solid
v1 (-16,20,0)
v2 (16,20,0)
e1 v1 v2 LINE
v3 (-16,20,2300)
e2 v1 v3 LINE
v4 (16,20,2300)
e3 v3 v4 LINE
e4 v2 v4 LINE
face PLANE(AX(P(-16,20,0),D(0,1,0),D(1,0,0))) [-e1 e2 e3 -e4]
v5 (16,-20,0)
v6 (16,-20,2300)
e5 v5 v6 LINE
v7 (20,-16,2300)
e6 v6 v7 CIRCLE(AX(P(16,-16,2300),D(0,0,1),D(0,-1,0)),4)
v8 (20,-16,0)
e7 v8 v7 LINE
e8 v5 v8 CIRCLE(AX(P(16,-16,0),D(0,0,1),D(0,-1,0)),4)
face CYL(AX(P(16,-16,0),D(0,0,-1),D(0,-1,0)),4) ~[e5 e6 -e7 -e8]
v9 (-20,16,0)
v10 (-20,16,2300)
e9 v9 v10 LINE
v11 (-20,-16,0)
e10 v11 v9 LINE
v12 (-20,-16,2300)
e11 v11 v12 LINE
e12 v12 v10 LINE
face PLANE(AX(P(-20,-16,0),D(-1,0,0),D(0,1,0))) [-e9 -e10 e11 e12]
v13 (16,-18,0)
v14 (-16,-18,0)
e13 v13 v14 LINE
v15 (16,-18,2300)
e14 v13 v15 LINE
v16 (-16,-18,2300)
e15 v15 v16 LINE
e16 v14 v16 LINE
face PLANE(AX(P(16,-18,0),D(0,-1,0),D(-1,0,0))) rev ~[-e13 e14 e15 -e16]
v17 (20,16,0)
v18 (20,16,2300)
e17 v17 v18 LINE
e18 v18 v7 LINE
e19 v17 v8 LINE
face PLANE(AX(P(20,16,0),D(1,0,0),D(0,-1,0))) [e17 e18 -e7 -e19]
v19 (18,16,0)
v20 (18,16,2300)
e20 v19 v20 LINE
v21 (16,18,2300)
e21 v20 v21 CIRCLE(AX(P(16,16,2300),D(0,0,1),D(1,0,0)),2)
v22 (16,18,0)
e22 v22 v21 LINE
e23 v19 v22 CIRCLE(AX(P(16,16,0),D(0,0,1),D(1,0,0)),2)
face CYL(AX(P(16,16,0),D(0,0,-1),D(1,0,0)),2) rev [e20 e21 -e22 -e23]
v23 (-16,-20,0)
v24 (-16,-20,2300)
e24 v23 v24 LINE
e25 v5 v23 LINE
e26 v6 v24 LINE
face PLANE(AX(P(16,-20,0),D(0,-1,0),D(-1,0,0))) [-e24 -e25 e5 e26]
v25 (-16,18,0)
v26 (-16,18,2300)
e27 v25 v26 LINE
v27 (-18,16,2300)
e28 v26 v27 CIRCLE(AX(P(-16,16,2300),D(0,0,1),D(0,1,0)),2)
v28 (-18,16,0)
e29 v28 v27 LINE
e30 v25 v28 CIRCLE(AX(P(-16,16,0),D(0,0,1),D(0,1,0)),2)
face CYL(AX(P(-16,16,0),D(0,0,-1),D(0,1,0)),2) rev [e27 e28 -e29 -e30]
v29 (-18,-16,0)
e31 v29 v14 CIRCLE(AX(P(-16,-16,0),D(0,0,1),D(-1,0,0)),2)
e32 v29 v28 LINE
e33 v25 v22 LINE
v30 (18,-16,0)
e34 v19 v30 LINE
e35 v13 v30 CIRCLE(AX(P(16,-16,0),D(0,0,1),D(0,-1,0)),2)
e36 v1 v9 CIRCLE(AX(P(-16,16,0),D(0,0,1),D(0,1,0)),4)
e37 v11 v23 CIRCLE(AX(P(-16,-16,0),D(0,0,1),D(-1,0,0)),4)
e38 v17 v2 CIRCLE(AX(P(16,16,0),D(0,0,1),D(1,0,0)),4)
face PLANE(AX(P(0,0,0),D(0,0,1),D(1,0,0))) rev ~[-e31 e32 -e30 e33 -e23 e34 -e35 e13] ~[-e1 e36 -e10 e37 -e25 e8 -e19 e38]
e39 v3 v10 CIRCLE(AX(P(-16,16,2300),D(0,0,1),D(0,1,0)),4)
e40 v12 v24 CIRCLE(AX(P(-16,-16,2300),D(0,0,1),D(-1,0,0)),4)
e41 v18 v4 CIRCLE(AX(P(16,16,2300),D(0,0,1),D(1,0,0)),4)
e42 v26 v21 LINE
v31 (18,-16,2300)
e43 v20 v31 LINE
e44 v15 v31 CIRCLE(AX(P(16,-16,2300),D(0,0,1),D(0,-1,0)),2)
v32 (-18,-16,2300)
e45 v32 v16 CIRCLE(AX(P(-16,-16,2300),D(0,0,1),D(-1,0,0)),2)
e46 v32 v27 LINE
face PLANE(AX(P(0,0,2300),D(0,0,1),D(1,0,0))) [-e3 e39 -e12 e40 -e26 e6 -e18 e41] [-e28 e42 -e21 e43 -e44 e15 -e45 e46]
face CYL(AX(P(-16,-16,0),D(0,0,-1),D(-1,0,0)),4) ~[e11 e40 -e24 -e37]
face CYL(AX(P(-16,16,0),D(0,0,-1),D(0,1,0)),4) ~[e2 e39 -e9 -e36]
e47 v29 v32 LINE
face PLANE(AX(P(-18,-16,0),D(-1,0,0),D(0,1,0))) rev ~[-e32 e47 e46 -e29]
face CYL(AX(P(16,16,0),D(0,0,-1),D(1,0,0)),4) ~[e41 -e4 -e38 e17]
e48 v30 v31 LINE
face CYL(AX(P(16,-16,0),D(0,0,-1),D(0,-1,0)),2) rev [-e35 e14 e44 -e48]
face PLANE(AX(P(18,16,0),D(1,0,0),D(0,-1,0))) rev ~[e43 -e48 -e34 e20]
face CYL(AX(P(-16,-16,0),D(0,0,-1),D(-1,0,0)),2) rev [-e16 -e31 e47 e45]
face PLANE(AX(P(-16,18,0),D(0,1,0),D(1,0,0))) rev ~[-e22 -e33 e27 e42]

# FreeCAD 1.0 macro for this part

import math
import FreeCAD as App
import Part
import Sketcher

V = App.Vector
Q = App.Units.Quantity

doc = App.newDocument("Part")
body = doc.addObject("PartDesign::Body", "Body")

# Sketch on XY plane
sketch1 = body.newObject("Sketcher::SketchObject", "Sketch")
sketch1.AttachmentSupport = (doc.getObject("XY_Plane"), [""])
sketch1.MapMode = "FlatFace"
sketch1.addGeometry(Part.LineSegment(V(-20, 16, 0), V(-20, -16, 0)), False)
sketch1.addGeometry(Part.ArcOfCircle(Part.Circle(V(-16, -16, 0), V(0, 0, 1), 4), math.radians(180), math.radians(270)), False)
sketch1.addGeometry(Part.LineSegment(V(-16, -20, 0), V(16, -20, 0)), False)
sketch1.addGeometry(Part.ArcOfCircle(Part.Circle(V(16, -16, 0), V(0, 0, 1), 4), math.radians(-90), math.radians(0)), False)
sketch1.addGeometry(Part.LineSegment(V(20, -16, 0), V(20, 16, 0)), False)
sketch1.addGeometry(Part.ArcOfCircle(Part.Circle(V(16, 16, 0), V(0, 0, 1), 4), math.radians(0), math.radians(90)), False)
sketch1.addGeometry(Part.LineSegment(V(16, 20, 0), V(-16, 20, 0)), False)
sketch1.addGeometry(Part.ArcOfCircle(Part.Circle(V(-16, 16, 0), V(0, 0, 1), 4), math.radians(90), math.radians(180)), False)
sketch1.addGeometry(Part.ArcOfCircle(Part.Circle(V(-16, 16, 0), V(0, 0, 1), 2), math.radians(90), math.radians(180)), False)
sketch1.addGeometry(Part.LineSegment(V(-16, 18, 0), V(16, 18, 0)), False)
sketch1.addGeometry(Part.ArcOfCircle(Part.Circle(V(16, 16, 0), V(0, 0, 1), 2), math.radians(0), math.radians(90)), False)
sketch1.addGeometry(Part.LineSegment(V(18, 16, 0), V(18, -16, 0)), False)
sketch1.addGeometry(Part.ArcOfCircle(Part.Circle(V(16, -16, 0), V(0, 0, 1), 2), math.radians(-90), math.radians(0)), False)
sketch1.addGeometry(Part.LineSegment(V(16, -18, 0), V(-16, -18, 0)), False)
sketch1.addGeometry(Part.ArcOfCircle(Part.Circle(V(-16, -16, 0), V(0, 0, 1), 2), math.radians(180), math.radians(270)), False)
sketch1.addGeometry(Part.LineSegment(V(-18, -16, 0), V(-18, 16, 0)), False)
sketch1.addConstraint(Sketcher.Constraint("Tangent", 0, 2, 1, 1))
sketch1.addConstraint(Sketcher.Constraint("Tangent", 1, 2, 2, 1))
sketch1.addConstraint(Sketcher.Constraint("Tangent", 2, 2, 3, 1))
sketch1.addConstraint(Sketcher.Constraint("Tangent", 3, 2, 4, 1))
sketch1.addConstraint(Sketcher.Constraint("Tangent", 4, 2, 5, 1))
sketch1.addConstraint(Sketcher.Constraint("Tangent", 5, 2, 6, 1))
sketch1.addConstraint(Sketcher.Constraint("Tangent", 6, 2, 7, 1))
sketch1.addConstraint(Sketcher.Constraint("Tangent", 7, 2, 0, 1))
sketch1.addConstraint(Sketcher.Constraint("Tangent", 8, 1, 9, 1))
sketch1.addConstraint(Sketcher.Constraint("Tangent", 9, 2, 10, 2))
sketch1.addConstraint(Sketcher.Constraint("Tangent", 10, 1, 11, 1))
sketch1.addConstraint(Sketcher.Constraint("Tangent", 11, 2, 12, 2))
sketch1.addConstraint(Sketcher.Constraint("Tangent", 12, 1, 13, 1))
sketch1.addConstraint(Sketcher.Constraint("Tangent", 13, 2, 14, 2))
sketch1.addConstraint(Sketcher.Constraint("Tangent", 14, 1, 15, 1))
sketch1.addConstraint(Sketcher.Constraint("Tangent", 15, 2, 8, 2))
sketch1.addConstraint(Sketcher.Constraint("Vertical", 0))
sketch1.addConstraint(Sketcher.Constraint("Horizontal", 2))
sketch1.addConstraint(Sketcher.Constraint("Vertical", 4))
sketch1.addConstraint(Sketcher.Constraint("Horizontal", 6))
sketch1.addConstraint(Sketcher.Constraint("Horizontal", 9))
sketch1.addConstraint(Sketcher.Constraint("Vertical", 11))
sketch1.addConstraint(Sketcher.Constraint("Horizontal", 13))
sketch1.addConstraint(Sketcher.Constraint("Vertical", 15))
sketch1.addConstraint(Sketcher.Constraint("Coincident", 8, 3, 7, 3))
sketch1.addConstraint(Sketcher.Constraint("Coincident", 10, 3, 5, 3))
sketch1.addConstraint(Sketcher.Constraint("Coincident", 12, 3, 3, 3))
sketch1.addConstraint(Sketcher.Constraint("Equal", 1, 3))
sketch1.addConstraint(Sketcher.Constraint("Equal", 3, 5))
sketch1.addConstraint(Sketcher.Constraint("Equal", 5, 7))
sketch1.addConstraint(Sketcher.Constraint("Equal", 12, 14))
sketch1.addConstraint(Sketcher.Constraint("Symmetric", 1, 3, 5, 3, -1, 1))
sketch1.addConstraint(Sketcher.Constraint("Equal", 13, 0))
sketch1.addConstraint(Sketcher.Constraint("Radius", 1, Q("4 mm")))
sketch1.addConstraint(Sketcher.Constraint("Radius", 8, Q("2 mm")))
sketch1.addConstraint(Sketcher.Constraint("DistanceX", 0, 2, -1, 1, Q("20 mm")))
pad1 = body.newObject("PartDesign::Pad", "Pad")
pad1.Profile = sketch1
pad1.Length = 2300

doc.recompute()
